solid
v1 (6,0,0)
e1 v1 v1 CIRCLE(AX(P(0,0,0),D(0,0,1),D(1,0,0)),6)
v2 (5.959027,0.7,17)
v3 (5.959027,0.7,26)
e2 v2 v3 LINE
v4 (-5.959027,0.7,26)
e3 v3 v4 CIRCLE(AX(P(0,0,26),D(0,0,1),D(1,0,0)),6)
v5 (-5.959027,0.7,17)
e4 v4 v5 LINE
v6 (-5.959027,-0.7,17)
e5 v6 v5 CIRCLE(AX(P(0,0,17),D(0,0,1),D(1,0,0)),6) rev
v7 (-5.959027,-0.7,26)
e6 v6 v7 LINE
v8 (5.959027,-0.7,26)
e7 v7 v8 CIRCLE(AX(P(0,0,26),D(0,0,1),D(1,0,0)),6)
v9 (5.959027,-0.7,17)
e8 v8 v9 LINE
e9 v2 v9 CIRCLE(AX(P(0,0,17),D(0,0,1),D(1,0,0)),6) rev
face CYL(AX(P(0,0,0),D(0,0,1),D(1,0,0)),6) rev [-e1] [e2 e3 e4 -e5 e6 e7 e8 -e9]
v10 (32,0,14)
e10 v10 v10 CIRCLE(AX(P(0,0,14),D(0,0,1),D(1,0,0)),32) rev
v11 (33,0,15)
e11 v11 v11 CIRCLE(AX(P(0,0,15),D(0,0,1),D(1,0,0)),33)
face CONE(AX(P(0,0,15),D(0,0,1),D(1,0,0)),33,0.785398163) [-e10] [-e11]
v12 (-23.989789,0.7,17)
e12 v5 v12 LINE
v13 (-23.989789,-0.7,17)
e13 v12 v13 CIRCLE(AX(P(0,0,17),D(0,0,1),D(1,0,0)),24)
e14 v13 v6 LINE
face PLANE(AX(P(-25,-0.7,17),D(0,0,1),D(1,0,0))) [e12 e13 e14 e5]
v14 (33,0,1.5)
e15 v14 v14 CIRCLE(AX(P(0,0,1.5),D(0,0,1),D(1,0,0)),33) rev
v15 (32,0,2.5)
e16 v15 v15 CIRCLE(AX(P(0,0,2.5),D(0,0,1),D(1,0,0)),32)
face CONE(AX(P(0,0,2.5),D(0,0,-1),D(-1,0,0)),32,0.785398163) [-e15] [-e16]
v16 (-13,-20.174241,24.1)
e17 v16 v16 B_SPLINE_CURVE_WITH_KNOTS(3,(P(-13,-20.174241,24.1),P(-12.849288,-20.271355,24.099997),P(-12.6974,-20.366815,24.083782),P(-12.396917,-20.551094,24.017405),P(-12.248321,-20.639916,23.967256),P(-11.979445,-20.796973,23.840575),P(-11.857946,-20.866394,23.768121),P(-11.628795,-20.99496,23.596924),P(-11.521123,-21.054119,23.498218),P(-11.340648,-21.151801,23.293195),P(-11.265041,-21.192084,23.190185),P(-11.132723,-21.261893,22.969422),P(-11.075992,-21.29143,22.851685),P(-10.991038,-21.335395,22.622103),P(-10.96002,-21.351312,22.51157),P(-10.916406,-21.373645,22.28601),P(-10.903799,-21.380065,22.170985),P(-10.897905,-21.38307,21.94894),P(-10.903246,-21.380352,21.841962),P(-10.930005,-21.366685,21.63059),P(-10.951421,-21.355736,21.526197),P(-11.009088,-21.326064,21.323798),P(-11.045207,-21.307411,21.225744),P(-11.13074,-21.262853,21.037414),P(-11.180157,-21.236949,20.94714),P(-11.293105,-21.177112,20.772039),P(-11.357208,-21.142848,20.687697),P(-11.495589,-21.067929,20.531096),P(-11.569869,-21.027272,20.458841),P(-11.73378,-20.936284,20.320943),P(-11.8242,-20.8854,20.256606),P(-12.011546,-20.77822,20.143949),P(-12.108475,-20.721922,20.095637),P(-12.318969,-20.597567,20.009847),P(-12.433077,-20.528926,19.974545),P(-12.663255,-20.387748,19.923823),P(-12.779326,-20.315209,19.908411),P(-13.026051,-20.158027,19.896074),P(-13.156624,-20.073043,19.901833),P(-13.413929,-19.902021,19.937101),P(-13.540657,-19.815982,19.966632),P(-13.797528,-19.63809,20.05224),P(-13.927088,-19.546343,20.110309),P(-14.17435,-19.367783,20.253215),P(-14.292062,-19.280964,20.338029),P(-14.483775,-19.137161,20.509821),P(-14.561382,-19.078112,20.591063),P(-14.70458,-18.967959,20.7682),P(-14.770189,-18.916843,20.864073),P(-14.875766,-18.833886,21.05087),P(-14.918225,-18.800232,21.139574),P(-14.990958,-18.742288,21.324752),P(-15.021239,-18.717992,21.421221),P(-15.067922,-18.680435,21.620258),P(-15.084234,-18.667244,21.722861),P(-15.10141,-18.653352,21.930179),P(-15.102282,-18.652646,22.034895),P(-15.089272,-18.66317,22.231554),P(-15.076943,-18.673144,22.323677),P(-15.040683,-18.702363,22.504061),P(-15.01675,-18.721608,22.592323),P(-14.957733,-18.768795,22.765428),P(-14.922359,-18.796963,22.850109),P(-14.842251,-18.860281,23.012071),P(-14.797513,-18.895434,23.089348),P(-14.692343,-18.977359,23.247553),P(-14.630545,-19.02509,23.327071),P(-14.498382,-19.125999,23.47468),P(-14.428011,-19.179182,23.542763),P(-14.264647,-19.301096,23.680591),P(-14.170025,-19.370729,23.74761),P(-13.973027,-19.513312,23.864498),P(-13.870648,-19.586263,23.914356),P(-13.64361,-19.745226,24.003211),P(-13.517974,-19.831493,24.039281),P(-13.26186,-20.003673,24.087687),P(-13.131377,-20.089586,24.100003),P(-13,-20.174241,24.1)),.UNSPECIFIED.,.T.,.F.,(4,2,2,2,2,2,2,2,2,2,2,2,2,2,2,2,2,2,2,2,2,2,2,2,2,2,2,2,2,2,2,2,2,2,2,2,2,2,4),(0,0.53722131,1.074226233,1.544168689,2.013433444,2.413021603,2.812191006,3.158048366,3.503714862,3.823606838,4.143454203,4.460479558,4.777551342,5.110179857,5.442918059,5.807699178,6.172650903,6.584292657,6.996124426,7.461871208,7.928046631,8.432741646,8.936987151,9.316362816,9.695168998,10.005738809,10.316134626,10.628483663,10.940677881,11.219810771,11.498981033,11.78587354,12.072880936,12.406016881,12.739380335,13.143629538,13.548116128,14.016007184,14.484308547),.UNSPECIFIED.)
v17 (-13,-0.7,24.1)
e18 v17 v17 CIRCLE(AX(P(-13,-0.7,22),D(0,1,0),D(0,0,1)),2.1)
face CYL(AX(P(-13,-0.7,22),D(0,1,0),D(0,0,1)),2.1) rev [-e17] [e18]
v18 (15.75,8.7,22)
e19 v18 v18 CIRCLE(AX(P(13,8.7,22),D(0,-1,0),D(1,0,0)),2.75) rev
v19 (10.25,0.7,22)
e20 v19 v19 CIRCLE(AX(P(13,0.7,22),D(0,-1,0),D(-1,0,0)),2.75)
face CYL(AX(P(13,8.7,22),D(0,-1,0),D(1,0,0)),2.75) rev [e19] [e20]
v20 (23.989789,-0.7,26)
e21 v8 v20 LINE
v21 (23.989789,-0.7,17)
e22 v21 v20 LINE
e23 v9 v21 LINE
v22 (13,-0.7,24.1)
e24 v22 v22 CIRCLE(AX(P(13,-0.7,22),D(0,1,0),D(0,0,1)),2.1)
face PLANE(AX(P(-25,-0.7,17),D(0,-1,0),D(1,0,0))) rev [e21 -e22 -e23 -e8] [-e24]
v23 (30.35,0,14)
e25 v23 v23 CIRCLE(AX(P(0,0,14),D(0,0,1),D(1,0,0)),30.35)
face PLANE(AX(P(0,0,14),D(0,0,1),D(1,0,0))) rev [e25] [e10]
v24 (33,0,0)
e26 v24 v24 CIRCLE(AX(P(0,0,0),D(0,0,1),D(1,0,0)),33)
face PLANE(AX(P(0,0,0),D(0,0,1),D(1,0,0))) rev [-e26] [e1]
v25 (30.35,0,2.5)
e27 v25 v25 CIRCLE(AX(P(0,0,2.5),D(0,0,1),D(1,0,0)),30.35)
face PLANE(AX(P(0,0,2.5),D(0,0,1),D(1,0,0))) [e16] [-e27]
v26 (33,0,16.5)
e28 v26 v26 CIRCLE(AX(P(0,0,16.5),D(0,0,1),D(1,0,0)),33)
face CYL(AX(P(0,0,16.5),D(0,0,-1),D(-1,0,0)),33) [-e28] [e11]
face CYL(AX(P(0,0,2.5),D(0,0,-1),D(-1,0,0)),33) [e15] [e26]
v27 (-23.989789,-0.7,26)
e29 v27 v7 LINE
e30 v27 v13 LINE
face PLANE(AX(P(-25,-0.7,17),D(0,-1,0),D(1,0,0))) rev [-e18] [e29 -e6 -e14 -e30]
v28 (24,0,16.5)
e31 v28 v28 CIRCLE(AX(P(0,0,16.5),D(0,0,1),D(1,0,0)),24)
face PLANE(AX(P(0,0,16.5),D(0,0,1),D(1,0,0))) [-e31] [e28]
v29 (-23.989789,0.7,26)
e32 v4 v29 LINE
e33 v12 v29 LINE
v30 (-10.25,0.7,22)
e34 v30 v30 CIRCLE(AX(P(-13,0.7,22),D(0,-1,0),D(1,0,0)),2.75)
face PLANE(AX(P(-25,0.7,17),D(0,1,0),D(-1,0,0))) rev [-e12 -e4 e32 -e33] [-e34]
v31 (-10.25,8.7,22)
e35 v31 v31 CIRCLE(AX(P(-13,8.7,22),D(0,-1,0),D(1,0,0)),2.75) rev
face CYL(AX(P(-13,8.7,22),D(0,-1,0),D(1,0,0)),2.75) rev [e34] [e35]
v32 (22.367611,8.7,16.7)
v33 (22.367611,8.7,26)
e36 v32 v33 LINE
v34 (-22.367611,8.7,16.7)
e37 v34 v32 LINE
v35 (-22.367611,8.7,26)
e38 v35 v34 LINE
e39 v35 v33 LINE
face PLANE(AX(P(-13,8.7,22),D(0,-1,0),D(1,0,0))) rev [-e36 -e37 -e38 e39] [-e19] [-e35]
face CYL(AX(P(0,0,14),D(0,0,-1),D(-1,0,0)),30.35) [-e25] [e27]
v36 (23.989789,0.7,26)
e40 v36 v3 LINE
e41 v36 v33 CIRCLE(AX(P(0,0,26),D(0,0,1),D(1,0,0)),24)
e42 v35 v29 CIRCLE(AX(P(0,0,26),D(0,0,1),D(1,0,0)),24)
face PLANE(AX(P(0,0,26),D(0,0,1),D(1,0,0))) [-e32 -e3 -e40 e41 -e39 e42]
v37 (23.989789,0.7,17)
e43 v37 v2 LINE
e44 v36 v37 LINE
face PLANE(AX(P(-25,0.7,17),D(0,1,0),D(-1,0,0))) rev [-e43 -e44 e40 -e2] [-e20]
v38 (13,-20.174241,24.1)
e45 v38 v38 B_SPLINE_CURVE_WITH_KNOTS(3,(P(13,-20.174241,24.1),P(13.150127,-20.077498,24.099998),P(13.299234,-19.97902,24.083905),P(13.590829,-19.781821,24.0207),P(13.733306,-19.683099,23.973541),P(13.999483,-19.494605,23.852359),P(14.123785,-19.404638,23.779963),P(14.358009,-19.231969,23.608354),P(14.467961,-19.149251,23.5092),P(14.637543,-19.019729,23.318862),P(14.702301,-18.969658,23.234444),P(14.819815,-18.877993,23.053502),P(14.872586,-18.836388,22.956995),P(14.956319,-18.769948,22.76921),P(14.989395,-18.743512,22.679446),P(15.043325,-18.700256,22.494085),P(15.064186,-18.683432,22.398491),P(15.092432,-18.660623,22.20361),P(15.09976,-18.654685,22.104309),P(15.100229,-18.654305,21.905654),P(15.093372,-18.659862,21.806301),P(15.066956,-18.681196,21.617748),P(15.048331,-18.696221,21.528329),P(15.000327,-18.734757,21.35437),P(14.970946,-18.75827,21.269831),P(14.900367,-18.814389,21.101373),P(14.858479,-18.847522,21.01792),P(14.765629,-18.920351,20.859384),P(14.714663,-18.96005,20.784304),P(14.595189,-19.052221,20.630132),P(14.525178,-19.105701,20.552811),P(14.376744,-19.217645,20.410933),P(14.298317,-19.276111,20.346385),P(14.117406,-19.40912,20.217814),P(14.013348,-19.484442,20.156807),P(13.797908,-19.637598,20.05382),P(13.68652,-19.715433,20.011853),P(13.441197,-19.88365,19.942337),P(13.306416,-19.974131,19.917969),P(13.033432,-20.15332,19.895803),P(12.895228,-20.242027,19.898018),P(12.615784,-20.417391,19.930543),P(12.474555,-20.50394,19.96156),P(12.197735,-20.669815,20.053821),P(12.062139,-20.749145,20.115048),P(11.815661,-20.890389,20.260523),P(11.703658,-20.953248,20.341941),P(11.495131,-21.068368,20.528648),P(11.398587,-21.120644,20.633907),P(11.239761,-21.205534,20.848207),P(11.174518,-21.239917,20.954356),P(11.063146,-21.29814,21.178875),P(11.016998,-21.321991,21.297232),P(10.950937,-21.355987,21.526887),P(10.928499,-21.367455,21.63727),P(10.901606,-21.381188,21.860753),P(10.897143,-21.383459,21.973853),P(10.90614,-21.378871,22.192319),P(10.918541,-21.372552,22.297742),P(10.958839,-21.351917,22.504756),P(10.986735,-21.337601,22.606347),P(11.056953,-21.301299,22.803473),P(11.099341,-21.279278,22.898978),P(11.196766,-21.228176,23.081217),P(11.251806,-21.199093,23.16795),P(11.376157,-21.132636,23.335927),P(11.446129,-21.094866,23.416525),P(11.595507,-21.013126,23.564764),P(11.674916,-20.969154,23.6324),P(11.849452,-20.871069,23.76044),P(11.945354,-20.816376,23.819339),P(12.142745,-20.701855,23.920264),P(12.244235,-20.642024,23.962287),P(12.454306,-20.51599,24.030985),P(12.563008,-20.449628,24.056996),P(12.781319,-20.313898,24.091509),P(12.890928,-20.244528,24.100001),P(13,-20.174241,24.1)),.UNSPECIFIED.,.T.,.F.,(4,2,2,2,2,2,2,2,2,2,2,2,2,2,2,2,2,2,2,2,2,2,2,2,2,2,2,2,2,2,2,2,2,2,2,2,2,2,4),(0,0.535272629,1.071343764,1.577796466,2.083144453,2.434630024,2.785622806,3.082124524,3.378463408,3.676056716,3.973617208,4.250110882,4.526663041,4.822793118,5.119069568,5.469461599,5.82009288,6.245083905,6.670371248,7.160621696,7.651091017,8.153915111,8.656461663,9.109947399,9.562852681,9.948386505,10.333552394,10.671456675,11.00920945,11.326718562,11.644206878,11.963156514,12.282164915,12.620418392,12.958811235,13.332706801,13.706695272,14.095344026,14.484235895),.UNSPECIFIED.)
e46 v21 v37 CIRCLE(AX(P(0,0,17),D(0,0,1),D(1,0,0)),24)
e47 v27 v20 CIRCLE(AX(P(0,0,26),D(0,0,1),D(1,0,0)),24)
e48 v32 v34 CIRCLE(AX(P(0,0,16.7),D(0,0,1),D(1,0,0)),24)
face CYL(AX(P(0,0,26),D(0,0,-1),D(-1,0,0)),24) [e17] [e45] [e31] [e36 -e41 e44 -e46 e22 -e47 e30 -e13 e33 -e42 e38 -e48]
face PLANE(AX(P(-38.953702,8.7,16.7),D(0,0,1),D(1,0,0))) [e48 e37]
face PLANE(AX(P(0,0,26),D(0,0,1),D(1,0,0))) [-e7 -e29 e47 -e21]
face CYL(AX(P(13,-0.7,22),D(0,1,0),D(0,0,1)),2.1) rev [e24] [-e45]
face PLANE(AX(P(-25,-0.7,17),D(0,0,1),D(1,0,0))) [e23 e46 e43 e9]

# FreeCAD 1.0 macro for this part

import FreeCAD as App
import Part
import Sketcher
from FreeCAD import Vector
Q = App.Units.Quantity


def edges_at(feature, points):
    """Names of the edges that pass closest to the given points."""
    edges = feature.Shape.Edges
    near = lambda p: min(range(len(edges)), key=lambda i: edges[i].distToShape(Part.Vertex(*p))[0])
    return sorted({f"Edge{near(p) + 1}" for p in points})

doc = App.newDocument("Part")
body = doc.addObject("PartDesign::Body", "Body")

sketch1 = doc.addObject("Sketcher::SketchObject", "Sketch")
body.addObject(sketch1)
sketch1.AttachmentSupport = (doc.XY_Plane, [""])
sketch1.MapMode = "FlatFace"
sketch1.addGeometry(Part.Circle(Vector(0, 0, 0), Vector(0, 0, 1), 33), False)
sketch1.addConstraint(Sketcher.Constraint("Coincident", 0, 3, -1, 1))
sketch1.addConstraint(Sketcher.Constraint("Diameter", 0, Q("66 mm")))
pad1 = doc.addObject("PartDesign::Pad", "Pad")
body.addObject(pad1)
pad1.Profile = sketch1
pad1.Length = 2.5

sketch2 = doc.addObject("Sketcher::SketchObject", "Sketch001")
body.addObject(sketch2)
sketch2.AttachmentSupport = (doc.XY_Plane, [""])
sketch2.MapMode = "FlatFace"
sketch2.AttachmentOffset = App.Placement(Vector(0, 0, 2.5), App.Rotation())
sketch2.addGeometry(Part.Circle(Vector(0, 0, 0), Vector(0, 0, 1), 30.35), False)
sketch2.addConstraint(Sketcher.Constraint("Coincident", 0, 3, -1, 1))
sketch2.addConstraint(Sketcher.Constraint("Diameter", 0, Q("60.7 mm")))
pad2 = doc.addObject("PartDesign::Pad", "Pad001")
body.addObject(pad2)
pad2.Profile = sketch2
pad2.Length = 11.5

sketch3 = doc.addObject("Sketcher::SketchObject", "Sketch002")
body.addObject(sketch3)
sketch3.AttachmentSupport = (doc.XY_Plane, [""])
sketch3.MapMode = "FlatFace"
sketch3.AttachmentOffset = App.Placement(Vector(0, 0, 14), App.Rotation())
sketch3.addGeometry(Part.Circle(Vector(0, 0, 0), Vector(0, 0, 1), 33), False)
sketch3.addConstraint(Sketcher.Constraint("Coincident", 0, 3, -1, 1))
sketch3.addConstraint(Sketcher.Constraint("Diameter", 0, Q("66 mm")))
pad3 = doc.addObject("PartDesign::Pad", "Pad002")
body.addObject(pad3)
pad3.Profile = sketch3
pad3.Length = 2.5

sketch4 = doc.addObject("Sketcher::SketchObject", "Sketch003")
body.addObject(sketch4)
sketch4.AttachmentSupport = (doc.XY_Plane, [""])
sketch4.MapMode = "FlatFace"
sketch4.AttachmentOffset = App.Placement(Vector(0, 0, 16.5), App.Rotation())
sketch4.addGeometry(Part.Circle(Vector(0, 0, 0), Vector(0, 0, 1), 24), False)
sketch4.addConstraint(Sketcher.Constraint("Coincident", 0, 3, -1, 1))
sketch4.addConstraint(Sketcher.Constraint("Diameter", 0, Q("48 mm")))
pad4 = doc.addObject("PartDesign::Pad", "Pad003")
body.addObject(pad4)
pad4.Profile = sketch4
pad4.Length = 9.5
doc.recompute()

chamfer = doc.addObject("PartDesign::Chamfer", "Chamfer")
body.addObject(chamfer)
chamfer.Base = (pad4, edges_at(pad4, [(-33, 0, 2.5), (-33, 0, 14)]))
chamfer.Size = 1

sketch5 = doc.addObject("Sketcher::SketchObject", "Sketch004")
body.addObject(sketch5)
sketch5.AttachmentSupport = (doc.XY_Plane, [""])
sketch5.MapMode = "FlatFace"
sketch5.AttachmentOffset = App.Placement(Vector(0, 0, 26), App.Rotation())
sketch5.addGeometry(Part.Circle(Vector(0, 0, 0), Vector(0, 0, 1), 6), False)
sketch5.addConstraint(Sketcher.Constraint("Coincident", 0, 3, -1, 1))
sketch5.addConstraint(Sketcher.Constraint("Diameter", 0, Q("12 mm")))
pocket1 = doc.addObject("PartDesign::Pocket", "Pocket")
body.addObject(pocket1)
pocket1.Profile = sketch5
pocket1.Type = "ThroughAll"

sketch6 = doc.addObject("Sketcher::SketchObject", "Sketch005")
body.addObject(sketch6)
sketch6.AttachmentSupport = (doc.XY_Plane, [""])
sketch6.MapMode = "FlatFace"
sketch6.AttachmentOffset = App.Placement(Vector(0, 0, 26), App.Rotation())
sketch6.addGeometry(Part.LineSegment(Vector(-25, 0.7, 0), Vector(-25, -0.7, 0)), False)
sketch6.addGeometry(Part.LineSegment(Vector(-25, -0.7, 0), Vector(25, -0.7, 0)), False)
sketch6.addGeometry(Part.LineSegment(Vector(25, -0.7, 0), Vector(25, 0.7, 0)), False)
sketch6.addGeometry(Part.LineSegment(Vector(25, 0.7, 0), Vector(-25, 0.7, 0)), False)
sketch6.addConstraint(Sketcher.Constraint("Coincident", 0, 2, 1, 1))
sketch6.addConstraint(Sketcher.Constraint("Coincident", 1, 2, 2, 1))
sketch6.addConstraint(Sketcher.Constraint("Coincident", 2, 2, 3, 1))
sketch6.addConstraint(Sketcher.Constraint("Coincident", 3, 2, 0, 1))
sketch6.addConstraint(Sketcher.Constraint("Vertical", 0))
sketch6.addConstraint(Sketcher.Constraint("Horizontal", 1))
sketch6.addConstraint(Sketcher.Constraint("Vertical", 2))
sketch6.addConstraint(Sketcher.Constraint("Horizontal", 3))
sketch6.addConstraint(Sketcher.Constraint("Symmetric", 0, 2, 2, 2, -1, 1))
sketch6.addConstraint(Sketcher.Constraint("DistanceX", 1, 1, 1, 2, Q("50 mm")))
sketch6.addConstraint(Sketcher.Constraint("DistanceY", 0, 2, 0, 1, Q("1.4 mm")))
pocket2 = doc.addObject("PartDesign::Pocket", "Pocket001")
body.addObject(pocket2)
pocket2.Profile = sketch6
pocket2.Length = 9

sketch7 = doc.addObject("Sketcher::SketchObject", "Sketch006")
body.addObject(sketch7)
sketch7.AttachmentSupport = (doc.XZ_Plane, [""])
sketch7.MapMode = "FlatFace"
sketch7.AttachmentOffset = App.Placement(Vector(0, 0, -0.7), App.Rotation())
sketch7.addGeometry(Part.Circle(Vector(-13, 22, 0), Vector(0, 0, 1), 2.75), False)
sketch7.addGeometry(Part.Circle(Vector(13, 22, 0), Vector(0, 0, 1), 2.75), False)
sketch7.addConstraint(Sketcher.Constraint("Equal", 0, 1))
sketch7.addConstraint(Sketcher.Constraint("Symmetric", 0, 3, 1, 3, -2))
sketch7.addConstraint(Sketcher.Constraint("Diameter", 0, Q("5.5 mm")))
sketch7.addConstraint(Sketcher.Constraint("DistanceX", 0, 3, -1, 1, Q("13 mm")))
sketch7.addConstraint(Sketcher.Constraint("DistanceY", -1, 1, 0, 3, Q("22 mm")))
pocket3 = doc.addObject("PartDesign::Pocket", "Pocket002")
body.addObject(pocket3)
pocket3.Profile = sketch7
pocket3.Length = 8

sketch8 = doc.addObject("Sketcher::SketchObject", "Sketch007")
body.addObject(sketch8)
sketch8.AttachmentSupport = (doc.XZ_Plane, [""])
sketch8.MapMode = "FlatFace"
sketch8.AttachmentOffset = App.Placement(Vector(0, 0, -8.7), App.Rotation())
sketch8.addGeometry(Part.Circle(Vector(-13, 22, 0), Vector(0, 0, 1), 5), False)
sketch8.addGeometry(Part.Circle(Vector(13, 22, 0), Vector(0, 0, 1), 5), False)
sketch8.addConstraint(Sketcher.Constraint("Equal", 0, 1))
sketch8.addConstraint(Sketcher.Constraint("Symmetric", 0, 3, 1, 3, -2))
sketch8.addConstraint(Sketcher.Constraint("Diameter", 0, Q("10 mm")))
sketch8.addConstraint(Sketcher.Constraint("DistanceX", 0, 3, -1, 1, Q("13 mm")))
sketch8.addConstraint(Sketcher.Constraint("DistanceY", -1, 1, 0, 3, Q("22 mm")))
pocket4 = doc.addObject("PartDesign::Pocket", "Pocket003")
body.addObject(pocket4)
pocket4.Profile = sketch8
pocket4.Type = "ThroughAll"

sketch9 = doc.addObject("Sketcher::SketchObject", "Sketch008")
body.addObject(sketch9)
sketch9.AttachmentSupport = (doc.XZ_Plane, [""])
sketch9.MapMode = "FlatFace"
sketch9.AttachmentOffset = App.Placement(Vector(0, 0, 0.7), App.Rotation())
sketch9.addGeometry(Part.Circle(Vector(-13, 22, 0), Vector(0, 0, 1), 2.1), False)
sketch9.addGeometry(Part.Circle(Vector(13, 22, 0), Vector(0, 0, 1), 2.1), False)
sketch9.addConstraint(Sketcher.Constraint("Equal", 0, 1))
sketch9.addConstraint(Sketcher.Constraint("Symmetric", 0, 3, 1, 3, -2))
sketch9.addConstraint(Sketcher.Constraint("Diameter", 0, Q("4.2 mm")))
sketch9.addConstraint(Sketcher.Constraint("DistanceX", 0, 3, -1, 1, Q("13 mm")))
sketch9.addConstraint(Sketcher.Constraint("DistanceY", -1, 1, 0, 3, Q("22 mm")))
doc.recompute()
hole = doc.addObject("PartDesign::Hole", "Hole")
body.addObject(hole)
hole.Profile = sketch9
hole.ThreadType = "None"
hole.Diameter = 4.2
hole.DepthType = "ThroughAll"
hole.Reversed = True

sketch10 = doc.addObject("Sketcher::SketchObject", "Sketch009")
body.addObject(sketch10)
sketch10.AttachmentSupport = (doc.XY_Plane, [""])
sketch10.MapMode = "FlatFace"
sketch10.AttachmentOffset = App.Placement(Vector(0, 0, 26), App.Rotation())
sketch10.addGeometry(Part.LineSegment(Vector(-18, 22.7, 0), Vector(-18, 8.7, 0)), False)
sketch10.addGeometry(Part.LineSegment(Vector(-18, 8.7, 0), Vector(-8, 8.7, 0)), False)
sketch10.addGeometry(Part.LineSegment(Vector(-8, 8.7, 0), Vector(-8, 22.7, 0)), False)
sketch10.addGeometry(Part.LineSegment(Vector(-8, 22.7, 0), Vector(-18, 22.7, 0)), False)
sketch10.addGeometry(Part.LineSegment(Vector(8, 22.7, 0), Vector(8, 8.7, 0)), False)
sketch10.addGeometry(Part.LineSegment(Vector(8, 8.7, 0), Vector(18, 8.7, 0)), False)
sketch10.addGeometry(Part.LineSegment(Vector(18, 8.7, 0), Vector(18, 22.7, 0)), False)
sketch10.addGeometry(Part.LineSegment(Vector(18, 22.7, 0), Vector(8, 22.7, 0)), False)
sketch10.addConstraint(Sketcher.Constraint("Coincident", 0, 2, 1, 1))
sketch10.addConstraint(Sketcher.Constraint("Coincident", 1, 2, 2, 1))
sketch10.addConstraint(Sketcher.Constraint("Coincident", 2, 2, 3, 1))
sketch10.addConstraint(Sketcher.Constraint("Coincident", 3, 2, 0, 1))
sketch10.addConstraint(Sketcher.Constraint("Coincident", 4, 2, 5, 1))
sketch10.addConstraint(Sketcher.Constraint("Coincident", 5, 2, 6, 1))
sketch10.addConstraint(Sketcher.Constraint("Coincident", 6, 2, 7, 1))
sketch10.addConstraint(Sketcher.Constraint("Coincident", 7, 2, 4, 1))
sketch10.addConstraint(Sketcher.Constraint("Vertical", 0))
sketch10.addConstraint(Sketcher.Constraint("Horizontal", 1))
sketch10.addConstraint(Sketcher.Constraint("Vertical", 2))
sketch10.addConstraint(Sketcher.Constraint("Horizontal", 3))
sketch10.addConstraint(Sketcher.Constraint("Vertical", 4))
sketch10.addConstraint(Sketcher.Constraint("Horizontal", 5))
sketch10.addConstraint(Sketcher.Constraint("Vertical", 6))
sketch10.addConstraint(Sketcher.Constraint("Horizontal", 7))
sketch10.addConstraint(Sketcher.Constraint("Symmetric", 1, 2, 4, 2, -2))
sketch10.addConstraint(Sketcher.Constraint("Symmetric", 3, 2, 6, 2, -2))
sketch10.addConstraint(Sketcher.Constraint("DistanceX", 1, 1, 1, 2, Q("10 mm")))
sketch10.addConstraint(Sketcher.Constraint("DistanceY", 0, 2, 0, 1, Q("14 mm")))
sketch10.addConstraint(Sketcher.Constraint("DistanceX", 0, 2, -1, 1, Q("18 mm")))
sketch10.addConstraint(Sketcher.Constraint("DistanceY", -1, 1, 0, 2, Q("8.7 mm")))
pocket5 = doc.addObject("PartDesign::Pocket", "Pocket004")
body.addObject(pocket5)
pocket5.Profile = sketch10
pocket5.Length = 4

sketch11 = doc.addObject("Sketcher::SketchObject", "Sketch010")
body.addObject(sketch11)
sketch11.AttachmentSupport = (doc.XY_Plane, [""])
sketch11.MapMode = "FlatFace"
sketch11.AttachmentOffset = App.Placement(Vector(0, 0, 26), App.Rotation())
sketch11.addGeometry(Part.LineSegment(Vector(-38.953702, 25.276438, 0), Vector(-38.953702, 8.7, 0)), False)
sketch11.addGeometry(Part.LineSegment(Vector(-38.953702, 8.7, 0), Vector(33.534168, 8.7, 0)), False)
sketch11.addGeometry(Part.LineSegment(Vector(33.534168, 8.7, 0), Vector(33.534168, 25.276438, 0)), False)
sketch11.addGeometry(Part.LineSegment(Vector(33.534168, 25.276438, 0), Vector(-38.953702, 25.276438, 0)), False)
sketch11.addConstraint(Sketcher.Constraint("Coincident", 0, 2, 1, 1))
sketch11.addConstraint(Sketcher.Constraint("Coincident", 1, 2, 2, 1))
sketch11.addConstraint(Sketcher.Constraint("Coincident", 2, 2, 3, 1))
sketch11.addConstraint(Sketcher.Constraint("Coincident", 3, 2, 0, 1))
sketch11.addConstraint(Sketcher.Constraint("Vertical", 0))
sketch11.addConstraint(Sketcher.Constraint("Horizontal", 1))
sketch11.addConstraint(Sketcher.Constraint("Vertical", 2))
sketch11.addConstraint(Sketcher.Constraint("Horizontal", 3))
sketch11.addConstraint(Sketcher.Constraint("DistanceY", -1, 1, 0, 2, Q("8.7 mm")))
sketch11.addConstraint(Sketcher.Constraint("DistanceX", 1, 1, 1, 2, Q("72.48787 mm")))
sketch11.addConstraint(Sketcher.Constraint("DistanceY", 0, 2, 0, 1, Q("16.576438 mm")))
sketch11.addConstraint(Sketcher.Constraint("DistanceX", 0, 2, -1, 1, Q("38.953702 mm")))
pocket6 = doc.addObject("PartDesign::Pocket", "Pocket005")
body.addObject(pocket6)
pocket6.Profile = sketch11
pocket6.Length = 9.3

doc.recompute()
